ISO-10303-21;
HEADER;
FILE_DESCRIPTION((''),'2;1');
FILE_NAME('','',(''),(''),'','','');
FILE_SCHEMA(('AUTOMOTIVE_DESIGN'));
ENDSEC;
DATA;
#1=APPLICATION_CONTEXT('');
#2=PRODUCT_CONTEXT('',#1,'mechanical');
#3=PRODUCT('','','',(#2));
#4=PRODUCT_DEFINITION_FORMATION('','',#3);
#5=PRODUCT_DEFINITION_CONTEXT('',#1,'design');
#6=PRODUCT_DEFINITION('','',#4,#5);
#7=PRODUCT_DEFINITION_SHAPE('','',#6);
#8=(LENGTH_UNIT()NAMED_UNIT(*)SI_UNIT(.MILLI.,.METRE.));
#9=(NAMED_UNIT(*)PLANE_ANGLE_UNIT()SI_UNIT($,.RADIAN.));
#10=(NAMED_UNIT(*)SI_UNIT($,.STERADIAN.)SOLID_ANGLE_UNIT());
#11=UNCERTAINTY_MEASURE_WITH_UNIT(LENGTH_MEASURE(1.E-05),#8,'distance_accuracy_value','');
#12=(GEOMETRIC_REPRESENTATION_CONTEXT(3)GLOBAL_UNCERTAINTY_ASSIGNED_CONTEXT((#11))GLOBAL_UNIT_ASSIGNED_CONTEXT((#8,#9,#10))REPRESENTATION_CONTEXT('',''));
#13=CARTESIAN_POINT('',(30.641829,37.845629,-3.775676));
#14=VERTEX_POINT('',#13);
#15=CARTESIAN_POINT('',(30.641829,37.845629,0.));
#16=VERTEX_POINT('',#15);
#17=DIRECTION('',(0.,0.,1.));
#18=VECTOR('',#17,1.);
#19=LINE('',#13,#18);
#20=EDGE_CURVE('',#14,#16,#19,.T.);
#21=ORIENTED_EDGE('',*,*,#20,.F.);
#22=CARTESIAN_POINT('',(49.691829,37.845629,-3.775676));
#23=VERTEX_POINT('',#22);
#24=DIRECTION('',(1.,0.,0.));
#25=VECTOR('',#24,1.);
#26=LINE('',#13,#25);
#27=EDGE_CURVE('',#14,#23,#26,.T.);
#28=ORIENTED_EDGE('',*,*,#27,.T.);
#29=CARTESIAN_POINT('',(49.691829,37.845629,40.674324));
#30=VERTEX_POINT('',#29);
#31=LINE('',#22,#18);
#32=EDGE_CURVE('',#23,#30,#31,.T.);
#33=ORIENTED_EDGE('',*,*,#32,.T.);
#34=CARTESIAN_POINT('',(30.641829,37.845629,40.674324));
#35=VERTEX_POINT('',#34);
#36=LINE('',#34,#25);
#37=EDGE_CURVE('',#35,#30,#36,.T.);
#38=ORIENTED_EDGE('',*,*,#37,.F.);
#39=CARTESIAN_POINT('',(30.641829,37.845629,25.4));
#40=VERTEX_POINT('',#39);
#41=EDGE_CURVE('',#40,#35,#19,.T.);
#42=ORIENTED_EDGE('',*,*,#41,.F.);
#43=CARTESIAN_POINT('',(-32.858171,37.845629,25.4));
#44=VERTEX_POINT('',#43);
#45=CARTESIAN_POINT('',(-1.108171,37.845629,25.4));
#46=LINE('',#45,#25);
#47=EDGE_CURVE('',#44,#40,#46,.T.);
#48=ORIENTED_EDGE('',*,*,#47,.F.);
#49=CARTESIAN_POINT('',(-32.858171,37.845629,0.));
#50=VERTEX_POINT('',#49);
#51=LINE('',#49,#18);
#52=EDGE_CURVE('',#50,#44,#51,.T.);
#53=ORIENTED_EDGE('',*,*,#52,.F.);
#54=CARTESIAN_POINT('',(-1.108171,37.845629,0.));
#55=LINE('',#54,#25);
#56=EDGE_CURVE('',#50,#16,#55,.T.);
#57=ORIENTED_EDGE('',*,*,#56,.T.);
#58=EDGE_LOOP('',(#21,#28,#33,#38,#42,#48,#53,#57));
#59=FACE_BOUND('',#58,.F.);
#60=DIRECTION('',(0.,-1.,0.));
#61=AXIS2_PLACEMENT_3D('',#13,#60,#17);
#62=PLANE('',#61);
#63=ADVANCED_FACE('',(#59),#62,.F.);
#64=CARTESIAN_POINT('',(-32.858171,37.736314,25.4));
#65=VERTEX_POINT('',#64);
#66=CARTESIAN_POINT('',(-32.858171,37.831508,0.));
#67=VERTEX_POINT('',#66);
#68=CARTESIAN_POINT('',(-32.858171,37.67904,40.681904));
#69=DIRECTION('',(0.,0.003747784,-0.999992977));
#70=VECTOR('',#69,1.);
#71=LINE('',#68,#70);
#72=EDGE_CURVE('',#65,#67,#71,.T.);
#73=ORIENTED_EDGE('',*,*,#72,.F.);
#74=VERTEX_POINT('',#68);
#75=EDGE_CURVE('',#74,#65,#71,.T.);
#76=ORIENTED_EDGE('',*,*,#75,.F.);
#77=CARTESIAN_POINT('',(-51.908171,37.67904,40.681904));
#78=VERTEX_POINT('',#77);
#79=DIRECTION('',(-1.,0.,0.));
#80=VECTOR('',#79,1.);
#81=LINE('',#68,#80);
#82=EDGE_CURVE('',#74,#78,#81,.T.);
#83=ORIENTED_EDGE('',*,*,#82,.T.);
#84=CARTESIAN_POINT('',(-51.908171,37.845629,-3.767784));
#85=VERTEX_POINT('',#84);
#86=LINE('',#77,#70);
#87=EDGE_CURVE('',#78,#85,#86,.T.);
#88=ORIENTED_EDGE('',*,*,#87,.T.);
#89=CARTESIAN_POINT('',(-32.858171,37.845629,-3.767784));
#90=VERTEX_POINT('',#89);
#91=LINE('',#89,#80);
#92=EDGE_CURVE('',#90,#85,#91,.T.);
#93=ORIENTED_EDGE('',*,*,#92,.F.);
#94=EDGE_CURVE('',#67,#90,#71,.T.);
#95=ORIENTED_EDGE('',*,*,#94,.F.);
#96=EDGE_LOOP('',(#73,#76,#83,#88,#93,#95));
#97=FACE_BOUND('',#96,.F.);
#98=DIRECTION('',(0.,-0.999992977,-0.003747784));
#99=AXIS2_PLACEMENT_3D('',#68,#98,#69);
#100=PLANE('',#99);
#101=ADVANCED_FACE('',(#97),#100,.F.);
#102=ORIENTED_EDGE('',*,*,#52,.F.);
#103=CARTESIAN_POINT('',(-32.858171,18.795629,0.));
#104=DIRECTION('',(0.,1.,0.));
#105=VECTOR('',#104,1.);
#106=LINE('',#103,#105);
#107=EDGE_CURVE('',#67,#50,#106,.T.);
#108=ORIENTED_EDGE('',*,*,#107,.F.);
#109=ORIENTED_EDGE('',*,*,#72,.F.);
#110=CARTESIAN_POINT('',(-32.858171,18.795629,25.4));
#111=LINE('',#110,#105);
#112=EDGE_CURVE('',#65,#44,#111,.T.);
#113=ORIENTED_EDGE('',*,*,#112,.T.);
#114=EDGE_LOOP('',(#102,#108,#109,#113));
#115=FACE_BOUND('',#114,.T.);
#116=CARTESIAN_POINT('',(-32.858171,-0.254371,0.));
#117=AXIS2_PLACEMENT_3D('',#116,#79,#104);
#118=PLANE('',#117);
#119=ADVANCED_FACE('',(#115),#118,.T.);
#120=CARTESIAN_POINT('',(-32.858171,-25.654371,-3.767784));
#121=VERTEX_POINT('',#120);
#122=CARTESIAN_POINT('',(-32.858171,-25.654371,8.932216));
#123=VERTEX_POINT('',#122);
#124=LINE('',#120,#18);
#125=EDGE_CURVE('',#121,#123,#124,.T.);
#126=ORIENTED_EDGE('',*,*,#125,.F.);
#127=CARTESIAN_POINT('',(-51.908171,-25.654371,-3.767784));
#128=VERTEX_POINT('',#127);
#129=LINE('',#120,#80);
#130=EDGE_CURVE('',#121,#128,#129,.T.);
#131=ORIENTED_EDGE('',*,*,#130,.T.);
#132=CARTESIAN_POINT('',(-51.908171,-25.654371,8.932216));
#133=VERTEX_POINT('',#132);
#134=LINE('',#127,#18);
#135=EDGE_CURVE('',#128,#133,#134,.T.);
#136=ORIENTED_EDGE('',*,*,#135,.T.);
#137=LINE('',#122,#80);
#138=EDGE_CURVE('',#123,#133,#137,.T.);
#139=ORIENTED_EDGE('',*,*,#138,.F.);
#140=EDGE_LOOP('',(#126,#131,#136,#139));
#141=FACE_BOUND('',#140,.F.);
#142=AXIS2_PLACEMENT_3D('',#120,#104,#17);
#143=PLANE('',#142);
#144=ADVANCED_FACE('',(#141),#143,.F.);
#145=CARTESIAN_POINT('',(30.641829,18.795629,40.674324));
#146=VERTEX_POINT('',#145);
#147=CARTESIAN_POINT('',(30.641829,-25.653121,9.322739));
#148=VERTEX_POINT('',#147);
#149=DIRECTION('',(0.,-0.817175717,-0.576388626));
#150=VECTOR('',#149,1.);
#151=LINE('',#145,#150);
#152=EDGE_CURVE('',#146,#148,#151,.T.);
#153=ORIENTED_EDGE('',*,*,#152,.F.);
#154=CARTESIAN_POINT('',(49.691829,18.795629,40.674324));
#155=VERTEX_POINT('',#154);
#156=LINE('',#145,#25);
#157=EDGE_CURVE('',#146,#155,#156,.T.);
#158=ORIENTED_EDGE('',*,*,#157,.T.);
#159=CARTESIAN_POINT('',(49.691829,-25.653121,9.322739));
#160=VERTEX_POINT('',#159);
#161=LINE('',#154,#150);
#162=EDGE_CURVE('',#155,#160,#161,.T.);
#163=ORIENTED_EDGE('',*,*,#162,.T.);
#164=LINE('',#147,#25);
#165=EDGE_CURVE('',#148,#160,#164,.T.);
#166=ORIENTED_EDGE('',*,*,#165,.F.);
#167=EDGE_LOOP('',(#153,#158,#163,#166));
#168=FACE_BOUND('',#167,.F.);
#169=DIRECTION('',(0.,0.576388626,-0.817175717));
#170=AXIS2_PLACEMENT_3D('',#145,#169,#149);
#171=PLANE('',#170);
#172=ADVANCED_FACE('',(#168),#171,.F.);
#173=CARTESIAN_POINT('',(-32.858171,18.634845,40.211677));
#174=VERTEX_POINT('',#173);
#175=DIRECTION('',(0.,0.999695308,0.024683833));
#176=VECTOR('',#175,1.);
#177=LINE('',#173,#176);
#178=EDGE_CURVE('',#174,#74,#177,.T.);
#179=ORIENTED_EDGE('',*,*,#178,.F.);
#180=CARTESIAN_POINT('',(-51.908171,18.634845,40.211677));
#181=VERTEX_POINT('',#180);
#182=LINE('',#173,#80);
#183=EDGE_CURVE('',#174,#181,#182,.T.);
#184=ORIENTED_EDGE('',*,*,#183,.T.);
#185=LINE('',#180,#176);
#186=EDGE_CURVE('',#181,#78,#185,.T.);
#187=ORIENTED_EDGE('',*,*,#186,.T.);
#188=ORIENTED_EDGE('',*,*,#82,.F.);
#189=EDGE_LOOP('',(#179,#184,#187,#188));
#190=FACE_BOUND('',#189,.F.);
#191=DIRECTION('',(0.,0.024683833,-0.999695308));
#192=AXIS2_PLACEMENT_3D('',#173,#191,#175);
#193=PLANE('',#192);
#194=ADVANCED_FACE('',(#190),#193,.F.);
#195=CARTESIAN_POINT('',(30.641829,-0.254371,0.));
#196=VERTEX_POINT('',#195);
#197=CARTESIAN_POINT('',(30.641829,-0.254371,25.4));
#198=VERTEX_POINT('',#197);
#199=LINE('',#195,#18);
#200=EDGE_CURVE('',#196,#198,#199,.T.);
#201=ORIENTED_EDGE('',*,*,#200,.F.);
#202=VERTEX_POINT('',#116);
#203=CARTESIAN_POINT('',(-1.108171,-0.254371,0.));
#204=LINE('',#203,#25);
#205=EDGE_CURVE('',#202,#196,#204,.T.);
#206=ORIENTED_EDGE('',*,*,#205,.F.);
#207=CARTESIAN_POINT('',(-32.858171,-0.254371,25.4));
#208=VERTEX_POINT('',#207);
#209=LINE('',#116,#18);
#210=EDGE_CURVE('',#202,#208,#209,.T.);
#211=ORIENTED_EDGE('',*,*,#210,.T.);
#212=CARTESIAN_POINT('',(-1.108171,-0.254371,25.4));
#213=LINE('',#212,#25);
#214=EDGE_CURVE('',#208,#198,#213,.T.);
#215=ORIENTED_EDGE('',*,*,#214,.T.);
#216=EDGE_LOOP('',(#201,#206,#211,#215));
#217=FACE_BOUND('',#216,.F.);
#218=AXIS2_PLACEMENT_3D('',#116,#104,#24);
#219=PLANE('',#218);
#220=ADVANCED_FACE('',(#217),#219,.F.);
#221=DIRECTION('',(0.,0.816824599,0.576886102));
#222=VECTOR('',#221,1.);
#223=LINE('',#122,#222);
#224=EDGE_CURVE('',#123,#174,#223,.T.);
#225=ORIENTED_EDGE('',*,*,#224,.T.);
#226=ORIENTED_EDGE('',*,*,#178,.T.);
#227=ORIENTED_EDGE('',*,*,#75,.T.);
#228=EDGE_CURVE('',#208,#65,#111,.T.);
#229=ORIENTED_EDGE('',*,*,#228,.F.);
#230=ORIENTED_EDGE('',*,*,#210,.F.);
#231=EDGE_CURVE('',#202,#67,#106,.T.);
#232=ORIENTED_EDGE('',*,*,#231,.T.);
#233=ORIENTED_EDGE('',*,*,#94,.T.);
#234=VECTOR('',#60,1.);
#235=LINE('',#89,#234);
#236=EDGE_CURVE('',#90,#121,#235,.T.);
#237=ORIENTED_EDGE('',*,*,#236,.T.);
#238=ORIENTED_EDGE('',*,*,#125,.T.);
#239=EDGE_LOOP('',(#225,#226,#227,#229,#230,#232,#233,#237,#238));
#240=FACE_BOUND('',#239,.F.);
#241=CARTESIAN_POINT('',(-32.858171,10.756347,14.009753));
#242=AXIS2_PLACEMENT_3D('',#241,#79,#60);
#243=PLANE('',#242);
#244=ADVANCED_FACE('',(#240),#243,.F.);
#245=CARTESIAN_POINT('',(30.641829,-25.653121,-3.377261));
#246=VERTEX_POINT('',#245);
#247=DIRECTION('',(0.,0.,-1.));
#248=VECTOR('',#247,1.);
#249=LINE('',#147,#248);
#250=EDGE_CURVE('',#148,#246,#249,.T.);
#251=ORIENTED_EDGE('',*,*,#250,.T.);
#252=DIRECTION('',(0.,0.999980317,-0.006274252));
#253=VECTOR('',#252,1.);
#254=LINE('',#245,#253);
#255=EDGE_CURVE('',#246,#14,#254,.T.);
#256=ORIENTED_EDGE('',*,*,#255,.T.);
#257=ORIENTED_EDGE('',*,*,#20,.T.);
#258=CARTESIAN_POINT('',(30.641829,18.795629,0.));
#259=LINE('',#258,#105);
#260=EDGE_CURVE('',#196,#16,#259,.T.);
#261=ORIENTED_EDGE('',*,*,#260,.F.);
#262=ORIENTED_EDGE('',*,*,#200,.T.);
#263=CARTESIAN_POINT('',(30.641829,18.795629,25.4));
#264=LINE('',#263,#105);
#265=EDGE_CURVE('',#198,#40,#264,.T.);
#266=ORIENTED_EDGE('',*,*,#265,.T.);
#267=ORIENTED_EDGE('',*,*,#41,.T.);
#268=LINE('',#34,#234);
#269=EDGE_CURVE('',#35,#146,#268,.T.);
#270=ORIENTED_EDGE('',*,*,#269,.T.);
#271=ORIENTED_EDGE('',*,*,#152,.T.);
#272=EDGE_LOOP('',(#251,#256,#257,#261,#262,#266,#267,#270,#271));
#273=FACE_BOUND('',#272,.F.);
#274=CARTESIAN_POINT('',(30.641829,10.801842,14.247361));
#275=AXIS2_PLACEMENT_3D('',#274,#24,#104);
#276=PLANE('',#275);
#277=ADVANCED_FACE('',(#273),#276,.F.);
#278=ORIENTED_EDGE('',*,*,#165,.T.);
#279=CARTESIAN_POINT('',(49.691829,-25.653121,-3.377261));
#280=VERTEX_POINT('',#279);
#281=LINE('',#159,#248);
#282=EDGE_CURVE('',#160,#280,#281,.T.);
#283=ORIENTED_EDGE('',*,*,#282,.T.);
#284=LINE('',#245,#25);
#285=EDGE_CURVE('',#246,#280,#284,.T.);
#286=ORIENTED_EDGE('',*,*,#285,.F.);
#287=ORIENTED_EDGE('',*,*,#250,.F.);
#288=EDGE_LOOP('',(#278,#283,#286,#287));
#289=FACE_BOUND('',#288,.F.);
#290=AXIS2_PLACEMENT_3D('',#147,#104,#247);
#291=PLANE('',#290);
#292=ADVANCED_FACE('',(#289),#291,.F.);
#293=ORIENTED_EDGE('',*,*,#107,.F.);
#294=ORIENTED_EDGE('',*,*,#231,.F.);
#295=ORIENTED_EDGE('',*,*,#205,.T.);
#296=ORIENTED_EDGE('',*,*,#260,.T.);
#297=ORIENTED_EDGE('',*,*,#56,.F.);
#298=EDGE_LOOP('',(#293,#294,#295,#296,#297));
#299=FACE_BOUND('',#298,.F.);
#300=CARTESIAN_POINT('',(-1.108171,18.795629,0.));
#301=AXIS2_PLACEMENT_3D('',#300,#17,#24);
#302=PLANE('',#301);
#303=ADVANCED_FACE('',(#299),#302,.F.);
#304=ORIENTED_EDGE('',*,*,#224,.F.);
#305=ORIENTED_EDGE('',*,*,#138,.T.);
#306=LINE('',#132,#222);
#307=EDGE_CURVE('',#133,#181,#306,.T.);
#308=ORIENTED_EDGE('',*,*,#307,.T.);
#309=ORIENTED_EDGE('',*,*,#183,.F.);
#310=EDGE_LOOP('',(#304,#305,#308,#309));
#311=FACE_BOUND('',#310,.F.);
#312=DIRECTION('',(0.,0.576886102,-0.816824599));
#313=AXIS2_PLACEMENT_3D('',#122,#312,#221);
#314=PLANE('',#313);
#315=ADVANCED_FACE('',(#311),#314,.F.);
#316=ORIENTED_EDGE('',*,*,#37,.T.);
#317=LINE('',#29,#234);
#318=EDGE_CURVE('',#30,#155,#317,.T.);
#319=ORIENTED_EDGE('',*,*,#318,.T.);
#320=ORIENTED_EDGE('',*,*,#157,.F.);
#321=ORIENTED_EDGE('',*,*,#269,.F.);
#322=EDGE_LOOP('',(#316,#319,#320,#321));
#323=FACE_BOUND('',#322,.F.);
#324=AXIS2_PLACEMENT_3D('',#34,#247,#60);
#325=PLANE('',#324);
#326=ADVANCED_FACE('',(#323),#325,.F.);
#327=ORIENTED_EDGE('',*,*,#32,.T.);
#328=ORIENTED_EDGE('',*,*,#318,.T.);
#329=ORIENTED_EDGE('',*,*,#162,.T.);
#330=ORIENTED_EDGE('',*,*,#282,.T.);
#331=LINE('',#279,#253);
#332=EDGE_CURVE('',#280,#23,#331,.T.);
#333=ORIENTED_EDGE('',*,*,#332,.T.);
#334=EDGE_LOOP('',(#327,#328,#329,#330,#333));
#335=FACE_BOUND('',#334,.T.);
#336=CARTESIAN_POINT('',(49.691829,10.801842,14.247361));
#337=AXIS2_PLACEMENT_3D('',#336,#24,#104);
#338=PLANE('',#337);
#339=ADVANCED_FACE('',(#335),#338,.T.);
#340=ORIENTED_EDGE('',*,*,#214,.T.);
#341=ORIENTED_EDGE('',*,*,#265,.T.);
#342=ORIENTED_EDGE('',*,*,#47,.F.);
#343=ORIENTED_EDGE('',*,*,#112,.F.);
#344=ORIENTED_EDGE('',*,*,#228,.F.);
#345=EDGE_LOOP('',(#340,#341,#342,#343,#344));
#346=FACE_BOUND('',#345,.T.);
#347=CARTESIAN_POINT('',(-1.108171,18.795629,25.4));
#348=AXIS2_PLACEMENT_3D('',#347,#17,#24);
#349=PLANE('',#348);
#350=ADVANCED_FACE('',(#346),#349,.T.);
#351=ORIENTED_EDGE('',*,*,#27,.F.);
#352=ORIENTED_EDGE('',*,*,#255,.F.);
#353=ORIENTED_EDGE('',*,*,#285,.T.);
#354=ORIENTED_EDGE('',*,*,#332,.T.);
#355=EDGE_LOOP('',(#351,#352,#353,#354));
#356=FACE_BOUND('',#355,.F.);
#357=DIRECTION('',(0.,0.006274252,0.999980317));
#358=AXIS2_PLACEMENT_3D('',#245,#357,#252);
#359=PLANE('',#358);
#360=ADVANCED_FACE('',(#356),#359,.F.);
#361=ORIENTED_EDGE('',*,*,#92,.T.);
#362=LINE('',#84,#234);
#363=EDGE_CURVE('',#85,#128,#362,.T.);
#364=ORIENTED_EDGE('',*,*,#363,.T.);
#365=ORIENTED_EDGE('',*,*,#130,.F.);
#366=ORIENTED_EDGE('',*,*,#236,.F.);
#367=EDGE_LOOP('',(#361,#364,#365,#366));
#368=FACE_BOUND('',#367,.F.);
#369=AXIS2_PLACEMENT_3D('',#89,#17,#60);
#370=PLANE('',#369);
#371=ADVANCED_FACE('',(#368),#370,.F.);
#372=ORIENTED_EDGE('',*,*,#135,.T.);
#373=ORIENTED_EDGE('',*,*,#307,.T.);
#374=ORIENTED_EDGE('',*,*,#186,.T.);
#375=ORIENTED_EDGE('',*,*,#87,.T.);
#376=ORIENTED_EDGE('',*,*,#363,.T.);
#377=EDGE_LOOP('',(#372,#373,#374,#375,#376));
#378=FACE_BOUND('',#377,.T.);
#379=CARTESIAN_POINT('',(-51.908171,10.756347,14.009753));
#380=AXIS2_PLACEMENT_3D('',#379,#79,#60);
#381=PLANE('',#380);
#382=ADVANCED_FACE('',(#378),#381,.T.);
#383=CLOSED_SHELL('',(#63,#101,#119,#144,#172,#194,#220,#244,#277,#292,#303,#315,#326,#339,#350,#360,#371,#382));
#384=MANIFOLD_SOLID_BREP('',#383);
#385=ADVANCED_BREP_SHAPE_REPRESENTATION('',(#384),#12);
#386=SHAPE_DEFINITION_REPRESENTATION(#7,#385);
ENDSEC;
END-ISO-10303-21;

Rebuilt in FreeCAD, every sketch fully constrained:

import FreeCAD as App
import Part
import Sketcher
Q = App.Units.Quantity


def add_polygon(sketch, points):
    """Adds a closed chain of lines whose ends are joined by coincident constraints."""
    first, n = sketch.GeometryCount, len(points)
    for a, b in zip(points, points[1:] + points[:1]):
        sketch.addGeometry(Part.LineSegment(App.Vector(*a, 0), App.Vector(*b, 0)), False)
    for i in range(n):
        sketch.addConstraint(Sketcher.Constraint("Coincident", first + i, 2, first + (i + 1) % n, 1))

doc = App.newDocument("Part")
body = doc.addObject("PartDesign::Body", "Body")

sketch1 = doc.addObject("Sketcher::SketchObject", "Sketch")
body.addObject(sketch1)
sketch1.AttachmentSupport = (doc.XY_Plane, [""])
sketch1.MapMode = "FlatFace"
add_polygon(sketch1, [(-33, 38), (-33, 0), (31, 0), (31, 38)])
sketch1.addConstraint([
    Sketcher.Constraint("Vertical", 0),
    Sketcher.Constraint("Horizontal", 1),
    Sketcher.Constraint("Vertical", 2),
    Sketcher.Constraint("Horizontal", 3),
    Sketcher.Constraint("DistanceX", 1, 1, 1, 2, Q("2.5 in")),
    Sketcher.Constraint("DistanceY", 0, 2, 0, 1, Q("1.5 in")),
    Sketcher.Constraint("DistanceX", 0, 2, -1, 1, Q("32.858171 mm")),
    Sketcher.Constraint("DistanceY", 0, 2, -1, 1, Q("0.254371 mm")),
])
pad1 = doc.addObject("PartDesign::Pad", "Pad")
body.addObject(pad1)
pad1.Profile = sketch1
pad1.Length = Q("1 in")

sketch2 = doc.addObject("Sketcher::SketchObject", "Sketch001")
body.addObject(sketch2)
sketch2.AttachmentSupport = (doc.YZ_Plane, [""])
sketch2.MapMode = "FlatFace"
sketch2.AttachmentOffset = App.Placement(App.Vector(0, 0, 30.641829), App.Rotation())
add_polygon(sketch2, [(38, -4), (38, 41), (19, 41), (-26, 9), (-26, -3)])
sketch2.addConstraint([
    Sketcher.Constraint("Vertical", 0),
    Sketcher.Constraint("Horizontal", 1),
    Sketcher.Constraint("Vertical", 3),
    Sketcher.Constraint("DistanceY", 3, 2, 3, 1, Q("0.5 in")),
    Sketcher.Constraint("Distance", 4, Q("2.5 in")),
    Sketcher.Constraint("DistanceX", 1, 2, 1, 1, Q("0.75 in")),
    Sketcher.Constraint("DistanceY", 0, 1, 0, 2, Q("1.75 in")),
    Sketcher.Constraint("DistanceX", -1, 1, 0, 2, Q("37.845629 mm")),
    Sketcher.Constraint("DistanceX", 2, 2, -1, 1, Q("25.653121 mm")),
    Sketcher.Constraint("DistanceY", -1, 1, 2, 2, Q("9.322739 mm")),
])
pad2 = doc.addObject("PartDesign::Pad", "Pad001")
body.addObject(pad2)
pad2.Profile = sketch2
pad2.Length = Q("0.75 in")

sketch3 = doc.addObject("Sketcher::SketchObject", "Sketch002")
body.addObject(sketch3)
sketch3.AttachmentSupport = (doc.YZ_Plane, [""])
sketch3.MapMode = "FlatFace"
sketch3.AttachmentOffset = App.Placement(App.Vector(0, 0, -32.858171), App.Rotation())
add_polygon(sketch3, [(19, 40), (38, 41), (38, -4), (-26, -4), (-26, 9)])
sketch3.addConstraint([
    Sketcher.Constraint("Horizontal", 2),
    Sketcher.Constraint("Vertical", 3),
    Sketcher.Constraint("DistanceX", 2, 2, 2, 1, Q("2.5 in")),
    Sketcher.Constraint("DistanceY", 3, 1, 3, 2, Q("0.5 in")),
    Sketcher.Constraint("Distance", 0, Q("0.75 in")),
    Sketcher.Constraint("Distance", 1, Q("1.75 in")),
    Sketcher.Constraint("DistanceX", -1, 1, 0, 2, Q("37.67904 mm")),
    Sketcher.Constraint("DistanceX", -1, 1, 1, 2, Q("37.845629 mm")),
    Sketcher.Constraint("DistanceY", 1, 2, 4, 2, Q("43.979461 mm")),
    Sketcher.Constraint("DistanceY", -1, 1, 0, 2, Q("40.681904 mm")),
])
pad3 = doc.addObject("PartDesign::Pad", "Pad002")
body.addObject(pad3)
pad3.Profile = sketch3
pad3.Length = Q("0.75 in")
pad3.Reversed = True

doc.recompute()
